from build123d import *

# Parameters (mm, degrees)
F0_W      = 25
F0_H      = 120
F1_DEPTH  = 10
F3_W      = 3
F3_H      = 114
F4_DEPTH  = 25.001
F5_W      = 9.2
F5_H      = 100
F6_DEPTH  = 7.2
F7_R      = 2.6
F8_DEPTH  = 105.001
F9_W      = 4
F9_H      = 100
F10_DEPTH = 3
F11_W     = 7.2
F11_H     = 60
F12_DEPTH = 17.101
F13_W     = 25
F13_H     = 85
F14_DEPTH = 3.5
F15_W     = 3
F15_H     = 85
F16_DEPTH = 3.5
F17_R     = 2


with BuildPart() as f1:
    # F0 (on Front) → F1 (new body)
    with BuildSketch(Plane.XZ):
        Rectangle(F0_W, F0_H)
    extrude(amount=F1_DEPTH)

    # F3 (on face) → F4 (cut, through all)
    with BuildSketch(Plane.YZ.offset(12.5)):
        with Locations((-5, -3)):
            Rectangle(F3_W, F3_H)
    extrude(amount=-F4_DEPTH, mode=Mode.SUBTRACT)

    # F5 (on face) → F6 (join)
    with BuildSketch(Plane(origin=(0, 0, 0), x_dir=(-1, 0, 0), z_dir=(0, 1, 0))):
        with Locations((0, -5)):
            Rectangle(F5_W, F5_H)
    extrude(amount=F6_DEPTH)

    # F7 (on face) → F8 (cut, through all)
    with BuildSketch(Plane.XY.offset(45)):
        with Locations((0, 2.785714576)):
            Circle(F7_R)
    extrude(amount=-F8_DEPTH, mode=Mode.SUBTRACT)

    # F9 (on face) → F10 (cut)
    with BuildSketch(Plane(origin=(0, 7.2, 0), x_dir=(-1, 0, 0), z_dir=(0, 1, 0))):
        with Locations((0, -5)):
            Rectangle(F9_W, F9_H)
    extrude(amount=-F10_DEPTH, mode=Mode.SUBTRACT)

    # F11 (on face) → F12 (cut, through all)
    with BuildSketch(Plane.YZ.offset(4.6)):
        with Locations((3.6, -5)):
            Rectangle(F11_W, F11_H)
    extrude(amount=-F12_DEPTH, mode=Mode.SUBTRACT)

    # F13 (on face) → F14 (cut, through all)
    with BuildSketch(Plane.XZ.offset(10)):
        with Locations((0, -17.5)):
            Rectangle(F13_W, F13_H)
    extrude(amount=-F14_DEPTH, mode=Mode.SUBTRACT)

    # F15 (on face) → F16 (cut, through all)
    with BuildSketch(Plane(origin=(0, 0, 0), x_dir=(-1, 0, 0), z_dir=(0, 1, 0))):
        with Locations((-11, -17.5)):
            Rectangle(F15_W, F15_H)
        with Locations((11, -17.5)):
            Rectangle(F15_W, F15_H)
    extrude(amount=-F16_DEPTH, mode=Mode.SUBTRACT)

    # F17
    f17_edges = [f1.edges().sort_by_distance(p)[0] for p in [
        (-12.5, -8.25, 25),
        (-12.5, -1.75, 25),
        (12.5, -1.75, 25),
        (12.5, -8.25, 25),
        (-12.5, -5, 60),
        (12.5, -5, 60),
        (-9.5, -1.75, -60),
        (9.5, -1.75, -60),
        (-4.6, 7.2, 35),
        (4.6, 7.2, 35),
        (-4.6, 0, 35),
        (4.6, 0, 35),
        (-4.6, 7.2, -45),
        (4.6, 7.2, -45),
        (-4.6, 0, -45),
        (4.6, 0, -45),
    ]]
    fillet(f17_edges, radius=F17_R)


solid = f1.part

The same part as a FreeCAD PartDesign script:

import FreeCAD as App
import Part
import Sketcher
from FreeCAD import Vector
Q = App.Units.Quantity


def edges_at(feature, points):
    """Names of the edges that pass closest to the given points."""
    edges = feature.Shape.Edges
    near = lambda p: min(range(len(edges)), key=lambda i: edges[i].distToShape(Part.Vertex(*p))[0])
    return sorted({f"Edge{near(p) + 1}" for p in points})


def add_polygon(sketch, points):
    """Adds a closed chain of lines whose ends are joined by coincident constraints."""
    first, n = sketch.GeometryCount, len(points)
    for a, b in zip(points, points[1:] + points[:1]):
        sketch.addGeometry(Part.LineSegment(App.Vector(*a, 0), App.Vector(*b, 0)), False)
    for i in range(n):
        sketch.addConstraint(Sketcher.Constraint("Coincident", first + i, 2, first + (i + 1) % n, 1))

doc = App.newDocument("Part")
body = doc.addObject("PartDesign::Body", "Body")

# Sketch on XZ plane
sketch1 = body.newObject("Sketcher::SketchObject", "Sketch")
sketch1.AttachmentSupport = (doc.getObject("XZ_Plane"), [""])
sketch1.MapMode = "FlatFace"
add_polygon(sketch1, [(-12, 60), (-12, -60), (12, -60), (12, 60)])  # lines 0-3
sketch1.addConstraint(Sketcher.Constraint("Vertical", 0))
sketch1.addConstraint(Sketcher.Constraint("Horizontal", 1))
sketch1.addConstraint(Sketcher.Constraint("Vertical", 2))
sketch1.addConstraint(Sketcher.Constraint("Horizontal", 3))
sketch1.addConstraint(Sketcher.Constraint("Symmetric", 0, 2, 2, 2, -1, 1))
sketch1.addConstraint(Sketcher.Constraint("DistanceX", 1, 1, 1, 2, Q("25 mm")))
sketch1.addConstraint(Sketcher.Constraint("DistanceY", 0, 2, 0, 1, Q("120 mm")))
pad1 = body.newObject("PartDesign::Pad", "Pad")
pad1.Profile = sketch1
pad1.Length = 10

# Sketch on YZ plane
sketch2 = body.newObject("Sketcher::SketchObject", "Sketch001")
sketch2.AttachmentSupport = (doc.getObject("YZ_Plane"), [""])
sketch2.MapMode = "FlatFace"
sketch2.AttachmentOffset = App.Placement(Vector(0, 0, 12.5), App.Rotation())
add_polygon(sketch2, [(-6.5, 54), (-6.5, -60), (-3.5, -60), (-3.5, 54)])  # lines 0-3
sketch2.addConstraint(Sketcher.Constraint("Vertical", 0))
sketch2.addConstraint(Sketcher.Constraint("Horizontal", 1))
sketch2.addConstraint(Sketcher.Constraint("Vertical", 2))
sketch2.addConstraint(Sketcher.Constraint("Horizontal", 3))
sketch2.addConstraint(Sketcher.Constraint("DistanceX", 1, 1, 1, 2, Q("3 mm")))
sketch2.addConstraint(Sketcher.Constraint("DistanceY", 0, 2, 0, 1, Q("114 mm")))
sketch2.addConstraint(Sketcher.Constraint("DistanceY", 0, 2, -1, 1, Q("60 mm")))
sketch2.addConstraint(Sketcher.Constraint("DistanceX", 0, 2, -1, 1, Q("6.5 mm")))
pocket1 = body.newObject("PartDesign::Pocket", "Pocket")
pocket1.Profile = sketch2
pocket1.Type = "ThroughAll"

# Sketch on XZ plane
sketch3 = body.newObject("Sketcher::SketchObject", "Sketch002")
sketch3.AttachmentSupport = (doc.getObject("XZ_Plane"), [""])
sketch3.MapMode = "FlatFace"
add_polygon(sketch3, [(5, 45), (5, -55), (-5, -55), (-5, 45)])  # lines 0-3
sketch3.addConstraint(Sketcher.Constraint("Vertical", 0))
sketch3.addConstraint(Sketcher.Constraint("Horizontal", 1))
sketch3.addConstraint(Sketcher.Constraint("Vertical", 2))
sketch3.addConstraint(Sketcher.Constraint("Horizontal", 3))
sketch3.addConstraint(Sketcher.Constraint("DistanceY", 0, 2, 0, 1, Q("100 mm")))
sketch3.addConstraint(Sketcher.Constraint("DistanceX", 1, 2, 1, 1, Q("9.2 mm")))
sketch3.addConstraint(Sketcher.Constraint("DistanceY", 0, 2, -1, 1, Q("55 mm")))
sketch3.addConstraint(Sketcher.Constraint("DistanceX", -1, 1, 0, 2, Q("4.6 mm")))
pad2 = body.newObject("PartDesign::Pad", "Pad001")
pad2.Profile = sketch3
pad2.Length = 7.2
pad2.Reversed = True

# Sketch on XY plane
sketch4 = body.newObject("Sketcher::SketchObject", "Sketch003")
sketch4.AttachmentSupport = (doc.getObject("XY_Plane"), [""])
sketch4.MapMode = "FlatFace"
sketch4.AttachmentOffset = App.Placement(Vector(0, 0, 45), App.Rotation())
sketch4.addGeometry(Part.Circle(Vector(0, 2.8, 0), Vector(0, 0, 1), 2.6), False)
sketch4.addConstraint(Sketcher.Constraint("PointOnObject", 0, 3, -2))
sketch4.addConstraint(Sketcher.Constraint("Diameter", 0, Q("5.2 mm")))
sketch4.addConstraint(Sketcher.Constraint("DistanceY", -1, 1, 0, 3, Q("2.785715 mm")))
pocket2 = body.newObject("PartDesign::Pocket", "Pocket001")
pocket2.Profile = sketch4
pocket2.Type = "ThroughAll"

# Sketch on XZ plane
sketch5 = body.newObject("Sketcher::SketchObject", "Sketch004")
sketch5.AttachmentSupport = (doc.getObject("XZ_Plane"), [""])
sketch5.MapMode = "FlatFace"
sketch5.AttachmentOffset = App.Placement(Vector(0, 0, -7.2), App.Rotation())
add_polygon(sketch5, [(2, 45), (2, -55), (-2, -55), (-2, 45)])  # lines 0-3
sketch5.addConstraint(Sketcher.Constraint("Vertical", 0))
sketch5.addConstraint(Sketcher.Constraint("Horizontal", 1))
sketch5.addConstraint(Sketcher.Constraint("Vertical", 2))
sketch5.addConstraint(Sketcher.Constraint("Horizontal", 3))
sketch5.addConstraint(Sketcher.Constraint("DistanceX", 1, 2, 1, 1, Q("4 mm")))
sketch5.addConstraint(Sketcher.Constraint("DistanceY", 0, 2, 0, 1, Q("100 mm")))
sketch5.addConstraint(Sketcher.Constraint("DistanceX", -1, 1, 0, 2, Q("2 mm")))
sketch5.addConstraint(Sketcher.Constraint("DistanceY", 0, 2, -1, 1, Q("55 mm")))
pocket3 = body.newObject("PartDesign::Pocket", "Pocket002")
pocket3.Profile = sketch5
pocket3.Length = 3
pocket3.Reversed = True

# Sketch on YZ plane
sketch6 = body.newObject("Sketcher::SketchObject", "Sketch005")
sketch6.AttachmentSupport = (doc.getObject("YZ_Plane"), [""])
sketch6.MapMode = "FlatFace"
sketch6.AttachmentOffset = App.Placement(Vector(0, 0, 4.6), App.Rotation())
add_polygon(sketch6, [(0, 25), (0, -35), (7, -35), (7, 25)])  # lines 0-3
sketch6.addConstraint(Sketcher.Constraint("Vertical", 0))
sketch6.addConstraint(Sketcher.Constraint("Horizontal", 1))
sketch6.addConstraint(Sketcher.Constraint("Vertical", 2))
sketch6.addConstraint(Sketcher.Constraint("Horizontal", 3))
sketch6.addConstraint(Sketcher.Constraint("PointOnObject", 0, 2, -2))
sketch6.addConstraint(Sketcher.Constraint("DistanceY", 0, 2, 0, 1, Q("60 mm")))
sketch6.addConstraint(Sketcher.Constraint("DistanceX", 1, 1, 1, 2, Q("7.2 mm")))
sketch6.addConstraint(Sketcher.Constraint("DistanceY", 0, 2, -1, 1, Q("35 mm")))
pocket4 = body.newObject("PartDesign::Pocket", "Pocket003")
pocket4.Profile = sketch6
pocket4.Type = "ThroughAll"

# Sketch on XZ plane
sketch7 = body.newObject("Sketcher::SketchObject", "Sketch006")
sketch7.AttachmentSupport = (doc.getObject("XZ_Plane"), [""])
sketch7.MapMode = "FlatFace"
sketch7.AttachmentOffset = App.Placement(Vector(0, 0, 10), App.Rotation())
add_polygon(sketch7, [(-12, 25), (-12, -60), (12, -60), (12, 25)])  # lines 0-3
sketch7.addConstraint(Sketcher.Constraint("Vertical", 0))
sketch7.addConstraint(Sketcher.Constraint("Horizontal", 1))
sketch7.addConstraint(Sketcher.Constraint("Vertical", 2))
sketch7.addConstraint(Sketcher.Constraint("Horizontal", 3))
sketch7.addConstraint(Sketcher.Constraint("DistanceX", 1, 1, 1, 2, Q("25 mm")))
sketch7.addConstraint(Sketcher.Constraint("DistanceY", 0, 2, 0, 1, Q("85 mm")))
sketch7.addConstraint(Sketcher.Constraint("DistanceY", 0, 2, -1, 1, Q("60 mm")))
sketch7.addConstraint(Sketcher.Constraint("DistanceX", 0, 2, -1, 1, Q("12.5 mm")))
pocket5 = body.newObject("PartDesign::Pocket", "Pocket004")
pocket5.Profile = sketch7
pocket5.Length = 3.5

# Sketch on XZ plane
sketch8 = body.newObject("Sketcher::SketchObject", "Sketch007")
sketch8.AttachmentSupport = (doc.getObject("XZ_Plane"), [""])
sketch8.MapMode = "FlatFace"
add_polygon(sketch8, [(12.5, 25), (12.5, -60), (9.5, -60), (9.5, 25)])  # lines 0-3
add_polygon(sketch8, [(-9.5, 25), (-9.5, -60), (-12.5, -60), (-12.5, 25)])  # lines 4-7
sketch8.addConstraint(Sketcher.Constraint("Vertical", 0))
sketch8.addConstraint(Sketcher.Constraint("Horizontal", 1))
sketch8.addConstraint(Sketcher.Constraint("Vertical", 2))
sketch8.addConstraint(Sketcher.Constraint("Horizontal", 3))
sketch8.addConstraint(Sketcher.Constraint("Vertical", 4))
sketch8.addConstraint(Sketcher.Constraint("Horizontal", 5))
sketch8.addConstraint(Sketcher.Constraint("Vertical", 6))
sketch8.addConstraint(Sketcher.Constraint("Horizontal", 7))
sketch8.addConstraint(Sketcher.Constraint("Symmetric", 1, 2, 4, 2, -2))
sketch8.addConstraint(Sketcher.Constraint("Symmetric", 3, 2, 6, 2, -2))
sketch8.addConstraint(Sketcher.Constraint("DistanceX", 1, 2, 1, 1, Q("3 mm")))
sketch8.addConstraint(Sketcher.Constraint("DistanceY", 0, 2, 0, 1, Q("85 mm")))
sketch8.addConstraint(Sketcher.Constraint("DistanceY", 0, 2, -1, 1, Q("60 mm")))
sketch8.addConstraint(Sketcher.Constraint("DistanceX", 4, 2, 1, 2, Q("19 mm")))
pocket6 = body.newObject("PartDesign::Pocket", "Pocket005")
pocket6.Profile = sketch8
pocket6.Type = "ThroughAll"
pocket6.Reversed = True
doc.recompute()

fillet = body.newObject("PartDesign::Fillet", "Fillet")
fillet.Base = (pocket6, edges_at(pocket6, [
    (-12.5, -8.25, 25),
    (-12.5, -1.75, 25),
    (12.5, -1.75, 25),
    (12.5, -8.25, 25),
    (-12.5, -5, 60),
    (12.5, -5, 60),
    (-9.5, -1.75, -60),
    (9.5, -1.75, -60),
    (-4.6, 7.2, 35),
    (4.6, 7.2, 35),
    (-4.6, 0, 35),
    (4.6, 0, 35),
    (-4.6, 7.2, -45),
    (4.6, 7.2, -45),
    (-4.6, 0, -45),
    (4.6, 0, -45),
]))
fillet.Radius = 2

doc.recompute()
